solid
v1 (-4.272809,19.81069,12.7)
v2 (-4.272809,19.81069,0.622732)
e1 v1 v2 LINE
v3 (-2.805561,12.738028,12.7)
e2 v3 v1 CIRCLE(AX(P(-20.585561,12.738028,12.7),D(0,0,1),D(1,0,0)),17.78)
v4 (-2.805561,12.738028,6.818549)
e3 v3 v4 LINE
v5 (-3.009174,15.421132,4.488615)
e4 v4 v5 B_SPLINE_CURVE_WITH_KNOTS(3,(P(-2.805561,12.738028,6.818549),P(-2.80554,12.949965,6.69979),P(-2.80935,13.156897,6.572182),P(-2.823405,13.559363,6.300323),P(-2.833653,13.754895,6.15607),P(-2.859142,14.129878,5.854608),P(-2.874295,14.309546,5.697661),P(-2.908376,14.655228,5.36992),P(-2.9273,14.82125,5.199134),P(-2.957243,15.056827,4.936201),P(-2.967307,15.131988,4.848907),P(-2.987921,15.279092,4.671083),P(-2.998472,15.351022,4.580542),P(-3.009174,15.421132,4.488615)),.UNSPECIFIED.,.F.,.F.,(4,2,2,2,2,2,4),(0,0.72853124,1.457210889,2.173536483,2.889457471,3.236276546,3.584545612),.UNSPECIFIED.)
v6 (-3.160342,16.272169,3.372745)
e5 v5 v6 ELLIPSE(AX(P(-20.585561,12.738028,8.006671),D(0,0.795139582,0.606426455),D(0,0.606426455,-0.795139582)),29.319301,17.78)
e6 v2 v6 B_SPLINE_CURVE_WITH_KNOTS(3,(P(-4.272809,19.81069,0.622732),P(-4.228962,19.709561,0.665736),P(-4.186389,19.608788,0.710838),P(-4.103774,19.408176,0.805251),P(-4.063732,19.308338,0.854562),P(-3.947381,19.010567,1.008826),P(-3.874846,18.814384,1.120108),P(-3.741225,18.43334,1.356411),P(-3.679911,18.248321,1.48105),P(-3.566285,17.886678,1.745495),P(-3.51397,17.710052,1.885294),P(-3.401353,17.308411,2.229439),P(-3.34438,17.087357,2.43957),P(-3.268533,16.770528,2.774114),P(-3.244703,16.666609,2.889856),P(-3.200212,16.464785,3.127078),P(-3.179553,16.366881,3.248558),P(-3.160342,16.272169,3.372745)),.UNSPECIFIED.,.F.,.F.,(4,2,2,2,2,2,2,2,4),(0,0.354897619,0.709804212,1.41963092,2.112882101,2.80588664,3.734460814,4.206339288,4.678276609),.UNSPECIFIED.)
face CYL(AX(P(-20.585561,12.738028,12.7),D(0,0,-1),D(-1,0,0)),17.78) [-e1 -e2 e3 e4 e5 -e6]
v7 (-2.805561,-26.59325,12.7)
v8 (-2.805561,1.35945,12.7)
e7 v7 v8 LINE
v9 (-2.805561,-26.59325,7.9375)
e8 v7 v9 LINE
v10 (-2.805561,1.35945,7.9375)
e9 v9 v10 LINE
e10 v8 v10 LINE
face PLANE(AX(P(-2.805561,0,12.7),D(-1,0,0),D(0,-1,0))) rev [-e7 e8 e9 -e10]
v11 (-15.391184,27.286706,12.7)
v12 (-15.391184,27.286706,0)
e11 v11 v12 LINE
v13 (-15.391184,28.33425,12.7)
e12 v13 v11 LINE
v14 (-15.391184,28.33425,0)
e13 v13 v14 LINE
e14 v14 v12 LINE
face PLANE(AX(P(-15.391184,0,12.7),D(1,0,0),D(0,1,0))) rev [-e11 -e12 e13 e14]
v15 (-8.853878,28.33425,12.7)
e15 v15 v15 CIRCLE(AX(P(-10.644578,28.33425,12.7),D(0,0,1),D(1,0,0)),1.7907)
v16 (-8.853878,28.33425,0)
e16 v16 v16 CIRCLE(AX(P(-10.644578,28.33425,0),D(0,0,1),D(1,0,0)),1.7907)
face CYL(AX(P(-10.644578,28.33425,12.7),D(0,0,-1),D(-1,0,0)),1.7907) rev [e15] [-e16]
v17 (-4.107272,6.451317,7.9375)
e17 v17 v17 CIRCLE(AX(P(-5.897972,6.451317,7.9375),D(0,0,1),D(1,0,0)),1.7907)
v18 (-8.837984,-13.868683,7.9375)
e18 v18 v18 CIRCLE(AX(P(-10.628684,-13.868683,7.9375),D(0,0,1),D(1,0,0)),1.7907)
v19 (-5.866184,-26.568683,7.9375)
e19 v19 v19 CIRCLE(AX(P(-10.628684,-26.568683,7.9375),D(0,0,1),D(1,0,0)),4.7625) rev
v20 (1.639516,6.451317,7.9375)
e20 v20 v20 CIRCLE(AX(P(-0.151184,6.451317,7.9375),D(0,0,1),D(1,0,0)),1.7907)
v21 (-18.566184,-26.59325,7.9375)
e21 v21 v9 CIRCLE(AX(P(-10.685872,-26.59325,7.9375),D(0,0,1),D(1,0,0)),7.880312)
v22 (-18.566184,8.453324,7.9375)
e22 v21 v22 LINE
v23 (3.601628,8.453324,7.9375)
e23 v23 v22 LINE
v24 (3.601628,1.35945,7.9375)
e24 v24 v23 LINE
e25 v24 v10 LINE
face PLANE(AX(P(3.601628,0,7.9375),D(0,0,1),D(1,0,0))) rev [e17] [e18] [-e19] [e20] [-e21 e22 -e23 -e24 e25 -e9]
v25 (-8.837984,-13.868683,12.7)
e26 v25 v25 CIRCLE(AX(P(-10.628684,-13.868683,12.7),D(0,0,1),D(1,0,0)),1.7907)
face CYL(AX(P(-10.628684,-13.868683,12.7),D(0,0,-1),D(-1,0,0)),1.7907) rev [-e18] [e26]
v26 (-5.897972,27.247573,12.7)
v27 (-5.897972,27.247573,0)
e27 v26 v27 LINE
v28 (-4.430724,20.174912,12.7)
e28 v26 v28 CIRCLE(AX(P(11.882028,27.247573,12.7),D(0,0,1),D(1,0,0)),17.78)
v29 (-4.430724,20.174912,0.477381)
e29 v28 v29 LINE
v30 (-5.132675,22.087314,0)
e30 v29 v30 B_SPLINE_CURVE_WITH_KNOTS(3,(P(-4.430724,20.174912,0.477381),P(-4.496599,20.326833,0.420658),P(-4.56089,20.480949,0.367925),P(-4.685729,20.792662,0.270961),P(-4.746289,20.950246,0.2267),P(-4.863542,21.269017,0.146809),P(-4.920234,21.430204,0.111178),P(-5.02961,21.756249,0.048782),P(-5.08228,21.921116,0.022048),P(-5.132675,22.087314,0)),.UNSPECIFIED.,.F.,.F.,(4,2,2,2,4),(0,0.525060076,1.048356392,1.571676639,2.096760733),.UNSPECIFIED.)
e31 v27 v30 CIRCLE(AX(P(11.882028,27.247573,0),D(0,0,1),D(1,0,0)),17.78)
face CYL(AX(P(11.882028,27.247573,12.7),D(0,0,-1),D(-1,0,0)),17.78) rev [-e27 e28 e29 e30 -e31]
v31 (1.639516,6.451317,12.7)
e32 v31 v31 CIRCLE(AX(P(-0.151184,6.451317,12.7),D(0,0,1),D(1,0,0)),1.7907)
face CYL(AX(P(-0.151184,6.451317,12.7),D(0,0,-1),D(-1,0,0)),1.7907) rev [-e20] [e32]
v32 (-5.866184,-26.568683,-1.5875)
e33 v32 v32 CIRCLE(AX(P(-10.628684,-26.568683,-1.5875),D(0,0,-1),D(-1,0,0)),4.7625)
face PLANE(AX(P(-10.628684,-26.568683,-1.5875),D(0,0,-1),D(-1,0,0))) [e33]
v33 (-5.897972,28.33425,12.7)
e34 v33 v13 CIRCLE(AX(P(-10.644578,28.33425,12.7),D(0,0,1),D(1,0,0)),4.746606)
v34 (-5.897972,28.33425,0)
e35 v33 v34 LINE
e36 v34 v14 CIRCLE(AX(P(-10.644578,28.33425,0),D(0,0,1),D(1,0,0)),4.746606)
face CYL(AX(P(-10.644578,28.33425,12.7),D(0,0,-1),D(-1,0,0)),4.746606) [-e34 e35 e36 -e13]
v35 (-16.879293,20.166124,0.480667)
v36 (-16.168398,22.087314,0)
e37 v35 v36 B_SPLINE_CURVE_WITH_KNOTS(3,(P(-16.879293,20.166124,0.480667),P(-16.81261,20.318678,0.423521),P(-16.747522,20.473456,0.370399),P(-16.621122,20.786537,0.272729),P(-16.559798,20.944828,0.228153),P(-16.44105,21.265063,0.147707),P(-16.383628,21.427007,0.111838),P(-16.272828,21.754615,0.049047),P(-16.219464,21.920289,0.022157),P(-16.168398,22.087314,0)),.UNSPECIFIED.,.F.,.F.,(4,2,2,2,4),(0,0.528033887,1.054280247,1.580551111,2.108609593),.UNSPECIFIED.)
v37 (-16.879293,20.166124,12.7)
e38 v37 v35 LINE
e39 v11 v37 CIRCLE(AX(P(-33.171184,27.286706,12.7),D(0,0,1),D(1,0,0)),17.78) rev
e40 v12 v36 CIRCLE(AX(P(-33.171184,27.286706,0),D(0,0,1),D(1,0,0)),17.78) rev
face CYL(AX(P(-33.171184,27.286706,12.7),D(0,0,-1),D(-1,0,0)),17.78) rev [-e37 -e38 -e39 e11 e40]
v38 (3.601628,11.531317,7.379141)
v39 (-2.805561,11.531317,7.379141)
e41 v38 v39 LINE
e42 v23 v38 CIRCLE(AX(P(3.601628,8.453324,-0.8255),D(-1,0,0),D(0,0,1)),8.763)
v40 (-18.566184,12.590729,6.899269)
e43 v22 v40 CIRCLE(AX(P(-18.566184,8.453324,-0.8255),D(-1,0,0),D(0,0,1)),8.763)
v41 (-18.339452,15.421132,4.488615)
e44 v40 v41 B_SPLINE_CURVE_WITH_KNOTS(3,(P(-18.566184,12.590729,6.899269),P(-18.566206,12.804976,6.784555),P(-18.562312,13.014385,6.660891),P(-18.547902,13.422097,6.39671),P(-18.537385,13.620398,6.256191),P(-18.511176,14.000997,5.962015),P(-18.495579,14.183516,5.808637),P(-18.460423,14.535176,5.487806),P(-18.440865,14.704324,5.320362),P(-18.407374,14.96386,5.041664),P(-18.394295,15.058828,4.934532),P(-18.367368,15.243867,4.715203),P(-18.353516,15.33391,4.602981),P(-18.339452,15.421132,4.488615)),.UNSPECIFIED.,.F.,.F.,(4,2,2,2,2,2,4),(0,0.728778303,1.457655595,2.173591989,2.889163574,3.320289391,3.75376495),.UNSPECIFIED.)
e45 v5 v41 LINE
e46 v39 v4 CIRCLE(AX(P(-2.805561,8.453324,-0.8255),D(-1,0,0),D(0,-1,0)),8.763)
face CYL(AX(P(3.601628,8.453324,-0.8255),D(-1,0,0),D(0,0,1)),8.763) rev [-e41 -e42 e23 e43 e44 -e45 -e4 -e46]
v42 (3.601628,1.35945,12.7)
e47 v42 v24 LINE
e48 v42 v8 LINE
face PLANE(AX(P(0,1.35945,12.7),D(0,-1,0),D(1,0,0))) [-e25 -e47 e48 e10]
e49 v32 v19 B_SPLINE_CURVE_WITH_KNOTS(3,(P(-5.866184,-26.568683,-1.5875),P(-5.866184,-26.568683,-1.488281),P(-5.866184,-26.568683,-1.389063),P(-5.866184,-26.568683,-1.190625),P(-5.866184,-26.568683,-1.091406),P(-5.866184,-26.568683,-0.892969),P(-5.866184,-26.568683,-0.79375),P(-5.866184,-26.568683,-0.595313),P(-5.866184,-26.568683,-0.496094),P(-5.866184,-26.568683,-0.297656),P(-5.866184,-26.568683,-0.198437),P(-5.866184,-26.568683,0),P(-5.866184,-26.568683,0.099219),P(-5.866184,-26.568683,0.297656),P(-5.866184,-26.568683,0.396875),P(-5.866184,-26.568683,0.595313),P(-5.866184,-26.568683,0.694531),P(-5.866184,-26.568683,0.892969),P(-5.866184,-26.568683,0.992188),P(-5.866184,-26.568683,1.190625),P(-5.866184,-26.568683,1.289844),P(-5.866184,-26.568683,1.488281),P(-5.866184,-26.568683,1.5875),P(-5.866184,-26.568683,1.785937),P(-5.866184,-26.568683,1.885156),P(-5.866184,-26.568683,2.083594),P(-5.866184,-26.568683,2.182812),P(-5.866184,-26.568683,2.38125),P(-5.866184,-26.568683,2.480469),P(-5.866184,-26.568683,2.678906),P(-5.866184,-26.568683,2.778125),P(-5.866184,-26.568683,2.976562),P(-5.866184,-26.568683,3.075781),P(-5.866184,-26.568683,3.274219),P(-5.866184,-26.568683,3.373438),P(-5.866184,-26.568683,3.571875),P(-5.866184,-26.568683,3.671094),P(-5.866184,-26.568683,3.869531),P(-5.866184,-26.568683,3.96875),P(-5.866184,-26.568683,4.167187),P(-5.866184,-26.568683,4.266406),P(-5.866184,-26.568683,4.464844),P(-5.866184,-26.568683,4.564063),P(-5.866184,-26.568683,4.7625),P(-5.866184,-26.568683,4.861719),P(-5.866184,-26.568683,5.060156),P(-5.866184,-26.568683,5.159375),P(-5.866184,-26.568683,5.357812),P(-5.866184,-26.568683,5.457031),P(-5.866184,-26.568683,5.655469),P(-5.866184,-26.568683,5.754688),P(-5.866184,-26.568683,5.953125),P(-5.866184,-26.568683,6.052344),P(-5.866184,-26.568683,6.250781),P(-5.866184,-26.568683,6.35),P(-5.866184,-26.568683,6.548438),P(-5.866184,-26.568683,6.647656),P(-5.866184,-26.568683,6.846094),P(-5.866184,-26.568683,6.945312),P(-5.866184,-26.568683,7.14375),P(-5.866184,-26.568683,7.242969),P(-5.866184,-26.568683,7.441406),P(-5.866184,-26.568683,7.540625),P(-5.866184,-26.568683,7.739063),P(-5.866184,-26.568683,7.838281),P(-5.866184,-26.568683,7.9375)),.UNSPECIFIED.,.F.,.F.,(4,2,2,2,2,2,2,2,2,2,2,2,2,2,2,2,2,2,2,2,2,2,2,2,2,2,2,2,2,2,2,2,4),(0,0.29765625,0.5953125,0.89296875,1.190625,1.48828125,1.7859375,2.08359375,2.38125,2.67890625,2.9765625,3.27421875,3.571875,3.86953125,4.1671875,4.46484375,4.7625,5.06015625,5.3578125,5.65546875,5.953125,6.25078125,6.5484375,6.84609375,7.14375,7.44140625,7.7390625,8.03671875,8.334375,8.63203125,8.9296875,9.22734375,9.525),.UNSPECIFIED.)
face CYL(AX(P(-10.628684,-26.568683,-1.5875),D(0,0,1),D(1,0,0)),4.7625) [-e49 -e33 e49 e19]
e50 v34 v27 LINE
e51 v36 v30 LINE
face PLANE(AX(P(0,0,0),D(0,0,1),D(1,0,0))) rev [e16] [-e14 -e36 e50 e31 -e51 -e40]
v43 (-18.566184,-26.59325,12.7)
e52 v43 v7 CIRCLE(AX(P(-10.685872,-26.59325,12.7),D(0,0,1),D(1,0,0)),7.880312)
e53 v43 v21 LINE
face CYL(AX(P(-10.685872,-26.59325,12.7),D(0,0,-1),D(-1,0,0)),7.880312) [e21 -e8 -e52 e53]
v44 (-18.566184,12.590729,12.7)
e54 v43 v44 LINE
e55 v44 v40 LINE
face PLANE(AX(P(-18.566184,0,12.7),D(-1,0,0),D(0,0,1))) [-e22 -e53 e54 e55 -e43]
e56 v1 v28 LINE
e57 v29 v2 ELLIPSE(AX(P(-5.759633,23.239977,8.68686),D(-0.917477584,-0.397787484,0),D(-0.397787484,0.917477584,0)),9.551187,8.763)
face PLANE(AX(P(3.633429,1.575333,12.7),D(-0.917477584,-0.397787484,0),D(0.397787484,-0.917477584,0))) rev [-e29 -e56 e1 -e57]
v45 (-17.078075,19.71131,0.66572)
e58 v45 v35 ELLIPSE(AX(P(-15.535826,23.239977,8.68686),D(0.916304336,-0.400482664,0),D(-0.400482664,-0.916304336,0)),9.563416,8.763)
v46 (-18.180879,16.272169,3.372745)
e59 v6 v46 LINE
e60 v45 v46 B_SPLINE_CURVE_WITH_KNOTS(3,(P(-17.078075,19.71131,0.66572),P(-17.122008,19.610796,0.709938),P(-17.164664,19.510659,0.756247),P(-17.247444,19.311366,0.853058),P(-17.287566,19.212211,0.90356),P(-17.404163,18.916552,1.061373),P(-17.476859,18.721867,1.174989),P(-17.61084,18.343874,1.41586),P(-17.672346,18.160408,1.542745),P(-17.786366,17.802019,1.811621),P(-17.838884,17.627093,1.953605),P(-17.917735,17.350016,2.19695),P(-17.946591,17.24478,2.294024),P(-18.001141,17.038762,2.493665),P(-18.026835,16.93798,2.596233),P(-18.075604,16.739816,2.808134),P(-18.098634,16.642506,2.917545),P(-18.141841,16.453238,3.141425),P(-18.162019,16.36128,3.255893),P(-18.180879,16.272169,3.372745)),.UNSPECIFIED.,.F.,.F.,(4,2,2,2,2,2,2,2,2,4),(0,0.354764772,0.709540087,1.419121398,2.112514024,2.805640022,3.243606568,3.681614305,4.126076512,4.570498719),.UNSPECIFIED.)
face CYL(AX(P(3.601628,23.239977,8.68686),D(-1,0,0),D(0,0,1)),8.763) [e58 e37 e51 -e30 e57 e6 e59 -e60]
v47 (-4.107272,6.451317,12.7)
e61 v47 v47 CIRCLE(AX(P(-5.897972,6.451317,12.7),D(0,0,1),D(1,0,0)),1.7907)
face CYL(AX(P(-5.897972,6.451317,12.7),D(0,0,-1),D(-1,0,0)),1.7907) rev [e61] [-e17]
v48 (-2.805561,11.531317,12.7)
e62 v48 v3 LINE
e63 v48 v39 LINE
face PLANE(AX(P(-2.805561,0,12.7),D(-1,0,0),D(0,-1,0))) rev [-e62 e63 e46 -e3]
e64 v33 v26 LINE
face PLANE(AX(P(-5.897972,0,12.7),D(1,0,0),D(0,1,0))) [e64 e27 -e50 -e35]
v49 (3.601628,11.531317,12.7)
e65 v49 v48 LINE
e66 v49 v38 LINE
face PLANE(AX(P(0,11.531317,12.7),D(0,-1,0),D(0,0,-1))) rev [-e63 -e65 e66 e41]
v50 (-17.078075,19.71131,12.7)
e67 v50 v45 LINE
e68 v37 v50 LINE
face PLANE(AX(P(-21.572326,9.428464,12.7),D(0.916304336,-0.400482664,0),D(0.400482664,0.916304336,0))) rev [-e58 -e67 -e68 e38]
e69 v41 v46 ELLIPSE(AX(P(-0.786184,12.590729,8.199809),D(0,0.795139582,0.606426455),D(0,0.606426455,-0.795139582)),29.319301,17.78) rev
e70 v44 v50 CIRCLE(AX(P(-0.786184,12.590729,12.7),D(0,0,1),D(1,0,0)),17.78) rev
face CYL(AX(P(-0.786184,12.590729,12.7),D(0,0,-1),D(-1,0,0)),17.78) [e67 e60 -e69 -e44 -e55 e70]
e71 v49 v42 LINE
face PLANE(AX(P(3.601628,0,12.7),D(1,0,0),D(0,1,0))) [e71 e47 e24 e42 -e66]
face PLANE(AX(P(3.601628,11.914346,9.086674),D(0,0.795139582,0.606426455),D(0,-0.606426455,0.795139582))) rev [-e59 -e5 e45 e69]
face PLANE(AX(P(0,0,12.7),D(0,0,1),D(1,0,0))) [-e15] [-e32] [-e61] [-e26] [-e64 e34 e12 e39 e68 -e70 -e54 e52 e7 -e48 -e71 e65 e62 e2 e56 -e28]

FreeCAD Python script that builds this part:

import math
import FreeCAD as App
import Part
import Sketcher
from FreeCAD import Vector
Q = App.Units.Quantity

doc = App.newDocument("Part")
params = doc.addObject("Spreadsheet::Sheet", "Params")
for row, (alias, value) in enumerate([
    ("sketch1_radius", "0.7 in"),
    ("sketch1_diameter", "0.141 in"),
    ("pad1_length", "0.5 in"),
    ("sketch2_radius", "0.345 in"),
    ("sketch2_height", "0.3125 in"),
    ("sketch3_diameter", "0.375 in"),
    ("pad2_length", "0.375 in"),
], start=1):
    params.set(f"A{row}", alias)
    params.set(f"B{row}", "=" + value)
    params.setAlias(f"B{row}", alias)

body = doc.addObject("PartDesign::Body", "Body")

# Sketch on XY plane
sketch1 = body.newObject("Sketcher::SketchObject", "Sketch")
sketch1.AttachmentSupport = (doc.getObject("XY_Plane"), [""])
sketch1.MapMode = "FlatFace"
sketch1.addGeometry([
    Part.ArcOfCircle(Part.Circle(Vector(-10.685872, -26.59325, 0), Vector(0, 0, 1), 7.880312), math.radians(180), math.radians(360)),  # 0
    Part.LineSegment(Vector(-2.805561, -26.59325, 0), Vector(-2.805561, 1.35945, 0)),  # 1
    Part.LineSegment(Vector(-2.805561, 1.35945, 0), Vector(3.601628, 1.35945, 0)),  # 2
    Part.LineSegment(Vector(3.601628, 1.35945, 0), Vector(3.601628, 11.531317, 0)),  # 3
    Part.LineSegment(Vector(3.601628, 11.531317, 0), Vector(-2.805561, 11.531317, 0)),  # 4
    Part.LineSegment(Vector(-2.805561, 11.531317, 0), Vector(-2.805561, 12.738028, 0)),  # 5
    Part.ArcOfCircle(Part.Circle(Vector(-20.585561, 12.738028, 0), Vector(0, 0, 1), 17.78), math.radians(0), math.radians(23.439936)),  # 6
    Part.LineSegment(Vector(-4.272809, 19.81069, 0), Vector(-4.430724, 20.174912, 0)),  # 7
    Part.ArcOfCircle(Part.Circle(Vector(11.882028, 27.247573, 0), Vector(0, 0, 1), 17.78), math.radians(-180), math.radians(-156.560064)),  # 8
    Part.LineSegment(Vector(-5.897972, 27.247573, 0), Vector(-5.897972, 28.33425, 0)),  # 9
    Part.ArcOfCircle(Part.Circle(Vector(-10.644578, 28.33425, 0), Vector(0, 0, 1), 4.746606), math.radians(0), math.radians(180)),  # 10
    Part.LineSegment(Vector(-15.391184, 28.33425, 0), Vector(-15.391184, 27.286706, 0)),  # 11
    Part.ArcOfCircle(Part.Circle(Vector(-33.171184, 27.286706, 0), Vector(0, 0, 1), 17.78), math.radians(-23.608356), math.radians(0)),  # 12
    Part.LineSegment(Vector(-16.879293, 20.166124, 0), Vector(-17.078075, 19.71131, 0)),  # 13
    Part.ArcOfCircle(Part.Circle(Vector(-0.786184, 12.590729, 0), Vector(0, 0, 1), 17.78), math.radians(156.391644), math.radians(180)),  # 14
    Part.LineSegment(Vector(-18.566184, 12.590729, 0), Vector(-18.566184, -26.59325, 0)),  # 15
    Part.Circle(Vector(-0.151184, 6.451317, 0), Vector(0, 0, 1), 1.7907),  # 16
    Part.Circle(Vector(-10.628684, -13.868683, 0), Vector(0, 0, 1), 1.7907),  # 17
    Part.Circle(Vector(-5.897972, 6.451317, 0), Vector(0, 0, 1), 1.7907),  # 18
    Part.Circle(Vector(-10.644578, 28.33425, 0), Vector(0, 0, 1), 1.7907),  # 19
], False)
sketch1.addConstraint([
    Sketcher.Constraint("Tangent", 0, 2, 1, 1),
    Sketcher.Constraint("Coincident", 1, 2, 2, 1),
    Sketcher.Constraint("Coincident", 2, 2, 3, 1),
    Sketcher.Constraint("Coincident", 3, 2, 4, 1),
    Sketcher.Constraint("Coincident", 4, 2, 5, 1),
    Sketcher.Constraint("Tangent", 5, 2, 6, 1),
    Sketcher.Constraint("Tangent", 6, 2, 7, 1),
    Sketcher.Constraint("Tangent", 7, 2, 8, 2),
    Sketcher.Constraint("Tangent", 8, 1, 9, 1),
    Sketcher.Constraint("Tangent", 9, 2, 10, 1),
    Sketcher.Constraint("Tangent", 10, 2, 11, 1),
    Sketcher.Constraint("Tangent", 11, 2, 12, 2),
    Sketcher.Constraint("Tangent", 12, 1, 13, 1),
    Sketcher.Constraint("Tangent", 13, 2, 14, 1),
    Sketcher.Constraint("Tangent", 14, 2, 15, 1),
    Sketcher.Constraint("Tangent", 15, 2, 0, 1),
    Sketcher.Constraint("Vertical", 1),
    Sketcher.Constraint("Horizontal", 2),
    Sketcher.Constraint("Vertical", 3),
    Sketcher.Constraint("Horizontal", 4),
    Sketcher.Constraint("Vertical", 5),
    Sketcher.Constraint("Vertical", 9),
    Sketcher.Constraint("Vertical", 11),
    Sketcher.Constraint("Vertical", 15),
    Sketcher.Constraint("Coincident", 19, 3, 10, 3),
    Sketcher.Constraint("Equal", 6, 8),
    Sketcher.Constraint("Equal", 8, 12),
    Sketcher.Constraint("Equal", 12, 14),
    Sketcher.Constraint("Equal", 16, 17),
    Sketcher.Constraint("Equal", 17, 18),
    Sketcher.Constraint("Equal", 18, 19),
    Sketcher.Constraint("Horizontal", 16, 3, 18, 3),
    Sketcher.Constraint("Vertical", 1, 2, 4, 2),
    Sketcher.Constraint("Vertical", 18, 3, 8, 1),
    Sketcher.Constraint("Radius", 6, Q("0.7 in")),
    Sketcher.Constraint("Diameter", 16, Q("0.141 in")),
    Sketcher.Constraint("DistanceY", 17, 3, 16, 3, Q("0.8 in")),
    Sketcher.Constraint("DistanceY", 16, 3, 3, 2, Q("0.2 in")),
    Sketcher.Constraint("DistanceY", 1, 1, 1, 2, Q("1.1005 in")),
    Sketcher.Constraint("Radius", 0, 7.880312),
    Sketcher.Constraint("DistanceX", 12, 3, 14, 3, Q("1.275 in")),
    Sketcher.Constraint("DistanceX", 14, 3, 16, 3, Q("0.025 in")),
    Sketcher.Constraint("DistanceX", 18, 3, 2, 2, Q("0.374 in")),
    Sketcher.Constraint("DistanceX", 15, 2, 17, 3, Q("0.3125 in")),
    Sketcher.Constraint("Radius", 10, 4.746606),
    Sketcher.Constraint("DistanceY", 0, 3, 10, 3, Q("2.1625 in")),
    Sketcher.Constraint("DistanceY", 5, 1, 5, 2, 1.206711),
    Sketcher.Constraint("DistanceY", 15, 2, 15, 1, 39.183979),
    Sketcher.Constraint("DistanceY", 14, 3, 6, 3, 0.1473),
    Sketcher.Constraint("DistanceY", 9, 1, 9, 2, 1.086676),
    Sketcher.Constraint("DistanceY", 11, 2, 11, 1, 1.047544),
    Sketcher.Constraint("DistanceY", 0, 3, -1, 1, 26.59325),
    Sketcher.Constraint("DistanceX", 6, 3, -1, 1, 20.585561),
])
sketch1.setExpression("Constraints[34]", "Params.sketch1_radius")
sketch1.setExpression("Constraints[35]", "Params.sketch1_diameter")
pad1 = body.newObject("PartDesign::Pad", "Pad")
pad1.Profile = sketch1
pad1.setExpression("Length", "Params.pad1_length")

# Sketch on YZ plane
sketch2 = body.newObject("Sketcher::SketchObject", "Sketch001")
sketch2.AttachmentSupport = (doc.getObject("YZ_Plane"), [""])
sketch2.MapMode = "FlatFace"
sketch2.AttachmentOffset = App.Placement(Vector(0, 0, -18.566184), App.Rotation())
sketch2.addGeometry([
    Part.LineSegment(Vector(-34.473562, 0, 0), Vector(-34.473562, 7.9375, 0)),  # 0
    Part.LineSegment(Vector(-34.473562, 7.9375, 0), Vector(8.453324, 7.9375, 0)),  # 1
    Part.ArcOfCircle(Part.Circle(Vector(8.453324, -0.8255, 0), Vector(0, 0, 1), 8.763), math.radians(61.826393), math.radians(90)),  # 2
    Part.ArcOfCircle(Part.Circle(Vector(8.453324, -0.8255, 0), Vector(0, 0, 1), 8.763), math.radians(37.331558), math.radians(61.826393)),  # 3
    Part.LineSegment(Vector(15.421132, 4.488615, 0), Vector(16.272169, 3.372745, 0)),  # 4
    Part.ArcOfCircle(Part.Circle(Vector(23.239977, 8.68686, 0), Vector(0, 0, 1), 8.763), math.radians(-142.668442), math.radians(-97.558452)),  # 5
    Part.LineSegment(Vector(22.087314, 0, 0), Vector(-34.473562, 0, 0)),  # 6
], False)
sketch2.addConstraint([
    Sketcher.Constraint("Coincident", 0, 2, 1, 1),
    Sketcher.Constraint("Tangent", 1, 2, 2, 2),
    Sketcher.Constraint("Tangent", 2, 1, 3, 2),
    Sketcher.Constraint("Tangent", 3, 1, 4, 1),
    Sketcher.Constraint("Tangent", 4, 2, 5, 1),
    Sketcher.Constraint("Coincident", 5, 2, 6, 1),
    Sketcher.Constraint("Coincident", 6, 2, 0, 1),
    Sketcher.Constraint("Vertical", 0),
    Sketcher.Constraint("Horizontal", 1),
    Sketcher.Constraint("Horizontal", 6),
    Sketcher.Constraint("Equal", 2, 3),
    Sketcher.Constraint("Equal", 3, 5),
    Sketcher.Constraint("PointOnObject", 5, 2, -1),
    Sketcher.Constraint("Radius", 2, Q("0.345 in")),
    Sketcher.Constraint("DistanceY", 0, 1, 0, 2, Q("0.3125 in")),
    Sketcher.Constraint("DistanceX", 1, 1, 1, 2, 42.926886),
    Sketcher.Constraint("DistanceX", 6, 2, 6, 1, 56.560875),
    Sketcher.Constraint("DistanceY", -1, 1, 5, 3, 8.68686),
    Sketcher.Constraint("DistanceX", 0, 2, -1, 1, 34.473562),
    Sketcher.Constraint("DistanceX", -1, 1, 2, 1, 12.590729),
])
sketch2.setExpression("Constraints[13]", "Params.sketch2_radius")
sketch2.setExpression("Constraints[14]", "Params.sketch2_height")
pocket1 = body.newObject("PartDesign::Pocket", "Pocket")
pocket1.Profile = sketch2
pocket1.Type = "ThroughAll"
pocket1.Reversed = True

# Sketch on XY plane
sketch3 = body.newObject("Sketcher::SketchObject", "Sketch002")
sketch3.AttachmentSupport = (doc.getObject("XY_Plane"), [""])
sketch3.MapMode = "FlatFace"
sketch3.AttachmentOffset = App.Placement(Vector(0, 0, 0.3125 * 25.4), App.Rotation())
sketch3.addGeometry(Part.Circle(Vector(-10.628684, -26.568683, 0), Vector(0, 0, 1), 4.7625), False)
sketch3.addConstraint([
    Sketcher.Constraint("Diameter", 0, Q("0.375 in")),
    Sketcher.Constraint("DistanceX", 0, 3, -1, 1, 10.628684),
    Sketcher.Constraint("DistanceY", 0, 3, -1, 1, 26.568683),
])
sketch3.setExpression("Constraints[0]", "Params.sketch3_diameter")
pad2 = body.newObject("PartDesign::Pad", "Pad001")
pad2.Profile = sketch3
pad2.setExpression("Length", "Params.pad2_length")
pad2.Reversed = True

doc.recompute()
